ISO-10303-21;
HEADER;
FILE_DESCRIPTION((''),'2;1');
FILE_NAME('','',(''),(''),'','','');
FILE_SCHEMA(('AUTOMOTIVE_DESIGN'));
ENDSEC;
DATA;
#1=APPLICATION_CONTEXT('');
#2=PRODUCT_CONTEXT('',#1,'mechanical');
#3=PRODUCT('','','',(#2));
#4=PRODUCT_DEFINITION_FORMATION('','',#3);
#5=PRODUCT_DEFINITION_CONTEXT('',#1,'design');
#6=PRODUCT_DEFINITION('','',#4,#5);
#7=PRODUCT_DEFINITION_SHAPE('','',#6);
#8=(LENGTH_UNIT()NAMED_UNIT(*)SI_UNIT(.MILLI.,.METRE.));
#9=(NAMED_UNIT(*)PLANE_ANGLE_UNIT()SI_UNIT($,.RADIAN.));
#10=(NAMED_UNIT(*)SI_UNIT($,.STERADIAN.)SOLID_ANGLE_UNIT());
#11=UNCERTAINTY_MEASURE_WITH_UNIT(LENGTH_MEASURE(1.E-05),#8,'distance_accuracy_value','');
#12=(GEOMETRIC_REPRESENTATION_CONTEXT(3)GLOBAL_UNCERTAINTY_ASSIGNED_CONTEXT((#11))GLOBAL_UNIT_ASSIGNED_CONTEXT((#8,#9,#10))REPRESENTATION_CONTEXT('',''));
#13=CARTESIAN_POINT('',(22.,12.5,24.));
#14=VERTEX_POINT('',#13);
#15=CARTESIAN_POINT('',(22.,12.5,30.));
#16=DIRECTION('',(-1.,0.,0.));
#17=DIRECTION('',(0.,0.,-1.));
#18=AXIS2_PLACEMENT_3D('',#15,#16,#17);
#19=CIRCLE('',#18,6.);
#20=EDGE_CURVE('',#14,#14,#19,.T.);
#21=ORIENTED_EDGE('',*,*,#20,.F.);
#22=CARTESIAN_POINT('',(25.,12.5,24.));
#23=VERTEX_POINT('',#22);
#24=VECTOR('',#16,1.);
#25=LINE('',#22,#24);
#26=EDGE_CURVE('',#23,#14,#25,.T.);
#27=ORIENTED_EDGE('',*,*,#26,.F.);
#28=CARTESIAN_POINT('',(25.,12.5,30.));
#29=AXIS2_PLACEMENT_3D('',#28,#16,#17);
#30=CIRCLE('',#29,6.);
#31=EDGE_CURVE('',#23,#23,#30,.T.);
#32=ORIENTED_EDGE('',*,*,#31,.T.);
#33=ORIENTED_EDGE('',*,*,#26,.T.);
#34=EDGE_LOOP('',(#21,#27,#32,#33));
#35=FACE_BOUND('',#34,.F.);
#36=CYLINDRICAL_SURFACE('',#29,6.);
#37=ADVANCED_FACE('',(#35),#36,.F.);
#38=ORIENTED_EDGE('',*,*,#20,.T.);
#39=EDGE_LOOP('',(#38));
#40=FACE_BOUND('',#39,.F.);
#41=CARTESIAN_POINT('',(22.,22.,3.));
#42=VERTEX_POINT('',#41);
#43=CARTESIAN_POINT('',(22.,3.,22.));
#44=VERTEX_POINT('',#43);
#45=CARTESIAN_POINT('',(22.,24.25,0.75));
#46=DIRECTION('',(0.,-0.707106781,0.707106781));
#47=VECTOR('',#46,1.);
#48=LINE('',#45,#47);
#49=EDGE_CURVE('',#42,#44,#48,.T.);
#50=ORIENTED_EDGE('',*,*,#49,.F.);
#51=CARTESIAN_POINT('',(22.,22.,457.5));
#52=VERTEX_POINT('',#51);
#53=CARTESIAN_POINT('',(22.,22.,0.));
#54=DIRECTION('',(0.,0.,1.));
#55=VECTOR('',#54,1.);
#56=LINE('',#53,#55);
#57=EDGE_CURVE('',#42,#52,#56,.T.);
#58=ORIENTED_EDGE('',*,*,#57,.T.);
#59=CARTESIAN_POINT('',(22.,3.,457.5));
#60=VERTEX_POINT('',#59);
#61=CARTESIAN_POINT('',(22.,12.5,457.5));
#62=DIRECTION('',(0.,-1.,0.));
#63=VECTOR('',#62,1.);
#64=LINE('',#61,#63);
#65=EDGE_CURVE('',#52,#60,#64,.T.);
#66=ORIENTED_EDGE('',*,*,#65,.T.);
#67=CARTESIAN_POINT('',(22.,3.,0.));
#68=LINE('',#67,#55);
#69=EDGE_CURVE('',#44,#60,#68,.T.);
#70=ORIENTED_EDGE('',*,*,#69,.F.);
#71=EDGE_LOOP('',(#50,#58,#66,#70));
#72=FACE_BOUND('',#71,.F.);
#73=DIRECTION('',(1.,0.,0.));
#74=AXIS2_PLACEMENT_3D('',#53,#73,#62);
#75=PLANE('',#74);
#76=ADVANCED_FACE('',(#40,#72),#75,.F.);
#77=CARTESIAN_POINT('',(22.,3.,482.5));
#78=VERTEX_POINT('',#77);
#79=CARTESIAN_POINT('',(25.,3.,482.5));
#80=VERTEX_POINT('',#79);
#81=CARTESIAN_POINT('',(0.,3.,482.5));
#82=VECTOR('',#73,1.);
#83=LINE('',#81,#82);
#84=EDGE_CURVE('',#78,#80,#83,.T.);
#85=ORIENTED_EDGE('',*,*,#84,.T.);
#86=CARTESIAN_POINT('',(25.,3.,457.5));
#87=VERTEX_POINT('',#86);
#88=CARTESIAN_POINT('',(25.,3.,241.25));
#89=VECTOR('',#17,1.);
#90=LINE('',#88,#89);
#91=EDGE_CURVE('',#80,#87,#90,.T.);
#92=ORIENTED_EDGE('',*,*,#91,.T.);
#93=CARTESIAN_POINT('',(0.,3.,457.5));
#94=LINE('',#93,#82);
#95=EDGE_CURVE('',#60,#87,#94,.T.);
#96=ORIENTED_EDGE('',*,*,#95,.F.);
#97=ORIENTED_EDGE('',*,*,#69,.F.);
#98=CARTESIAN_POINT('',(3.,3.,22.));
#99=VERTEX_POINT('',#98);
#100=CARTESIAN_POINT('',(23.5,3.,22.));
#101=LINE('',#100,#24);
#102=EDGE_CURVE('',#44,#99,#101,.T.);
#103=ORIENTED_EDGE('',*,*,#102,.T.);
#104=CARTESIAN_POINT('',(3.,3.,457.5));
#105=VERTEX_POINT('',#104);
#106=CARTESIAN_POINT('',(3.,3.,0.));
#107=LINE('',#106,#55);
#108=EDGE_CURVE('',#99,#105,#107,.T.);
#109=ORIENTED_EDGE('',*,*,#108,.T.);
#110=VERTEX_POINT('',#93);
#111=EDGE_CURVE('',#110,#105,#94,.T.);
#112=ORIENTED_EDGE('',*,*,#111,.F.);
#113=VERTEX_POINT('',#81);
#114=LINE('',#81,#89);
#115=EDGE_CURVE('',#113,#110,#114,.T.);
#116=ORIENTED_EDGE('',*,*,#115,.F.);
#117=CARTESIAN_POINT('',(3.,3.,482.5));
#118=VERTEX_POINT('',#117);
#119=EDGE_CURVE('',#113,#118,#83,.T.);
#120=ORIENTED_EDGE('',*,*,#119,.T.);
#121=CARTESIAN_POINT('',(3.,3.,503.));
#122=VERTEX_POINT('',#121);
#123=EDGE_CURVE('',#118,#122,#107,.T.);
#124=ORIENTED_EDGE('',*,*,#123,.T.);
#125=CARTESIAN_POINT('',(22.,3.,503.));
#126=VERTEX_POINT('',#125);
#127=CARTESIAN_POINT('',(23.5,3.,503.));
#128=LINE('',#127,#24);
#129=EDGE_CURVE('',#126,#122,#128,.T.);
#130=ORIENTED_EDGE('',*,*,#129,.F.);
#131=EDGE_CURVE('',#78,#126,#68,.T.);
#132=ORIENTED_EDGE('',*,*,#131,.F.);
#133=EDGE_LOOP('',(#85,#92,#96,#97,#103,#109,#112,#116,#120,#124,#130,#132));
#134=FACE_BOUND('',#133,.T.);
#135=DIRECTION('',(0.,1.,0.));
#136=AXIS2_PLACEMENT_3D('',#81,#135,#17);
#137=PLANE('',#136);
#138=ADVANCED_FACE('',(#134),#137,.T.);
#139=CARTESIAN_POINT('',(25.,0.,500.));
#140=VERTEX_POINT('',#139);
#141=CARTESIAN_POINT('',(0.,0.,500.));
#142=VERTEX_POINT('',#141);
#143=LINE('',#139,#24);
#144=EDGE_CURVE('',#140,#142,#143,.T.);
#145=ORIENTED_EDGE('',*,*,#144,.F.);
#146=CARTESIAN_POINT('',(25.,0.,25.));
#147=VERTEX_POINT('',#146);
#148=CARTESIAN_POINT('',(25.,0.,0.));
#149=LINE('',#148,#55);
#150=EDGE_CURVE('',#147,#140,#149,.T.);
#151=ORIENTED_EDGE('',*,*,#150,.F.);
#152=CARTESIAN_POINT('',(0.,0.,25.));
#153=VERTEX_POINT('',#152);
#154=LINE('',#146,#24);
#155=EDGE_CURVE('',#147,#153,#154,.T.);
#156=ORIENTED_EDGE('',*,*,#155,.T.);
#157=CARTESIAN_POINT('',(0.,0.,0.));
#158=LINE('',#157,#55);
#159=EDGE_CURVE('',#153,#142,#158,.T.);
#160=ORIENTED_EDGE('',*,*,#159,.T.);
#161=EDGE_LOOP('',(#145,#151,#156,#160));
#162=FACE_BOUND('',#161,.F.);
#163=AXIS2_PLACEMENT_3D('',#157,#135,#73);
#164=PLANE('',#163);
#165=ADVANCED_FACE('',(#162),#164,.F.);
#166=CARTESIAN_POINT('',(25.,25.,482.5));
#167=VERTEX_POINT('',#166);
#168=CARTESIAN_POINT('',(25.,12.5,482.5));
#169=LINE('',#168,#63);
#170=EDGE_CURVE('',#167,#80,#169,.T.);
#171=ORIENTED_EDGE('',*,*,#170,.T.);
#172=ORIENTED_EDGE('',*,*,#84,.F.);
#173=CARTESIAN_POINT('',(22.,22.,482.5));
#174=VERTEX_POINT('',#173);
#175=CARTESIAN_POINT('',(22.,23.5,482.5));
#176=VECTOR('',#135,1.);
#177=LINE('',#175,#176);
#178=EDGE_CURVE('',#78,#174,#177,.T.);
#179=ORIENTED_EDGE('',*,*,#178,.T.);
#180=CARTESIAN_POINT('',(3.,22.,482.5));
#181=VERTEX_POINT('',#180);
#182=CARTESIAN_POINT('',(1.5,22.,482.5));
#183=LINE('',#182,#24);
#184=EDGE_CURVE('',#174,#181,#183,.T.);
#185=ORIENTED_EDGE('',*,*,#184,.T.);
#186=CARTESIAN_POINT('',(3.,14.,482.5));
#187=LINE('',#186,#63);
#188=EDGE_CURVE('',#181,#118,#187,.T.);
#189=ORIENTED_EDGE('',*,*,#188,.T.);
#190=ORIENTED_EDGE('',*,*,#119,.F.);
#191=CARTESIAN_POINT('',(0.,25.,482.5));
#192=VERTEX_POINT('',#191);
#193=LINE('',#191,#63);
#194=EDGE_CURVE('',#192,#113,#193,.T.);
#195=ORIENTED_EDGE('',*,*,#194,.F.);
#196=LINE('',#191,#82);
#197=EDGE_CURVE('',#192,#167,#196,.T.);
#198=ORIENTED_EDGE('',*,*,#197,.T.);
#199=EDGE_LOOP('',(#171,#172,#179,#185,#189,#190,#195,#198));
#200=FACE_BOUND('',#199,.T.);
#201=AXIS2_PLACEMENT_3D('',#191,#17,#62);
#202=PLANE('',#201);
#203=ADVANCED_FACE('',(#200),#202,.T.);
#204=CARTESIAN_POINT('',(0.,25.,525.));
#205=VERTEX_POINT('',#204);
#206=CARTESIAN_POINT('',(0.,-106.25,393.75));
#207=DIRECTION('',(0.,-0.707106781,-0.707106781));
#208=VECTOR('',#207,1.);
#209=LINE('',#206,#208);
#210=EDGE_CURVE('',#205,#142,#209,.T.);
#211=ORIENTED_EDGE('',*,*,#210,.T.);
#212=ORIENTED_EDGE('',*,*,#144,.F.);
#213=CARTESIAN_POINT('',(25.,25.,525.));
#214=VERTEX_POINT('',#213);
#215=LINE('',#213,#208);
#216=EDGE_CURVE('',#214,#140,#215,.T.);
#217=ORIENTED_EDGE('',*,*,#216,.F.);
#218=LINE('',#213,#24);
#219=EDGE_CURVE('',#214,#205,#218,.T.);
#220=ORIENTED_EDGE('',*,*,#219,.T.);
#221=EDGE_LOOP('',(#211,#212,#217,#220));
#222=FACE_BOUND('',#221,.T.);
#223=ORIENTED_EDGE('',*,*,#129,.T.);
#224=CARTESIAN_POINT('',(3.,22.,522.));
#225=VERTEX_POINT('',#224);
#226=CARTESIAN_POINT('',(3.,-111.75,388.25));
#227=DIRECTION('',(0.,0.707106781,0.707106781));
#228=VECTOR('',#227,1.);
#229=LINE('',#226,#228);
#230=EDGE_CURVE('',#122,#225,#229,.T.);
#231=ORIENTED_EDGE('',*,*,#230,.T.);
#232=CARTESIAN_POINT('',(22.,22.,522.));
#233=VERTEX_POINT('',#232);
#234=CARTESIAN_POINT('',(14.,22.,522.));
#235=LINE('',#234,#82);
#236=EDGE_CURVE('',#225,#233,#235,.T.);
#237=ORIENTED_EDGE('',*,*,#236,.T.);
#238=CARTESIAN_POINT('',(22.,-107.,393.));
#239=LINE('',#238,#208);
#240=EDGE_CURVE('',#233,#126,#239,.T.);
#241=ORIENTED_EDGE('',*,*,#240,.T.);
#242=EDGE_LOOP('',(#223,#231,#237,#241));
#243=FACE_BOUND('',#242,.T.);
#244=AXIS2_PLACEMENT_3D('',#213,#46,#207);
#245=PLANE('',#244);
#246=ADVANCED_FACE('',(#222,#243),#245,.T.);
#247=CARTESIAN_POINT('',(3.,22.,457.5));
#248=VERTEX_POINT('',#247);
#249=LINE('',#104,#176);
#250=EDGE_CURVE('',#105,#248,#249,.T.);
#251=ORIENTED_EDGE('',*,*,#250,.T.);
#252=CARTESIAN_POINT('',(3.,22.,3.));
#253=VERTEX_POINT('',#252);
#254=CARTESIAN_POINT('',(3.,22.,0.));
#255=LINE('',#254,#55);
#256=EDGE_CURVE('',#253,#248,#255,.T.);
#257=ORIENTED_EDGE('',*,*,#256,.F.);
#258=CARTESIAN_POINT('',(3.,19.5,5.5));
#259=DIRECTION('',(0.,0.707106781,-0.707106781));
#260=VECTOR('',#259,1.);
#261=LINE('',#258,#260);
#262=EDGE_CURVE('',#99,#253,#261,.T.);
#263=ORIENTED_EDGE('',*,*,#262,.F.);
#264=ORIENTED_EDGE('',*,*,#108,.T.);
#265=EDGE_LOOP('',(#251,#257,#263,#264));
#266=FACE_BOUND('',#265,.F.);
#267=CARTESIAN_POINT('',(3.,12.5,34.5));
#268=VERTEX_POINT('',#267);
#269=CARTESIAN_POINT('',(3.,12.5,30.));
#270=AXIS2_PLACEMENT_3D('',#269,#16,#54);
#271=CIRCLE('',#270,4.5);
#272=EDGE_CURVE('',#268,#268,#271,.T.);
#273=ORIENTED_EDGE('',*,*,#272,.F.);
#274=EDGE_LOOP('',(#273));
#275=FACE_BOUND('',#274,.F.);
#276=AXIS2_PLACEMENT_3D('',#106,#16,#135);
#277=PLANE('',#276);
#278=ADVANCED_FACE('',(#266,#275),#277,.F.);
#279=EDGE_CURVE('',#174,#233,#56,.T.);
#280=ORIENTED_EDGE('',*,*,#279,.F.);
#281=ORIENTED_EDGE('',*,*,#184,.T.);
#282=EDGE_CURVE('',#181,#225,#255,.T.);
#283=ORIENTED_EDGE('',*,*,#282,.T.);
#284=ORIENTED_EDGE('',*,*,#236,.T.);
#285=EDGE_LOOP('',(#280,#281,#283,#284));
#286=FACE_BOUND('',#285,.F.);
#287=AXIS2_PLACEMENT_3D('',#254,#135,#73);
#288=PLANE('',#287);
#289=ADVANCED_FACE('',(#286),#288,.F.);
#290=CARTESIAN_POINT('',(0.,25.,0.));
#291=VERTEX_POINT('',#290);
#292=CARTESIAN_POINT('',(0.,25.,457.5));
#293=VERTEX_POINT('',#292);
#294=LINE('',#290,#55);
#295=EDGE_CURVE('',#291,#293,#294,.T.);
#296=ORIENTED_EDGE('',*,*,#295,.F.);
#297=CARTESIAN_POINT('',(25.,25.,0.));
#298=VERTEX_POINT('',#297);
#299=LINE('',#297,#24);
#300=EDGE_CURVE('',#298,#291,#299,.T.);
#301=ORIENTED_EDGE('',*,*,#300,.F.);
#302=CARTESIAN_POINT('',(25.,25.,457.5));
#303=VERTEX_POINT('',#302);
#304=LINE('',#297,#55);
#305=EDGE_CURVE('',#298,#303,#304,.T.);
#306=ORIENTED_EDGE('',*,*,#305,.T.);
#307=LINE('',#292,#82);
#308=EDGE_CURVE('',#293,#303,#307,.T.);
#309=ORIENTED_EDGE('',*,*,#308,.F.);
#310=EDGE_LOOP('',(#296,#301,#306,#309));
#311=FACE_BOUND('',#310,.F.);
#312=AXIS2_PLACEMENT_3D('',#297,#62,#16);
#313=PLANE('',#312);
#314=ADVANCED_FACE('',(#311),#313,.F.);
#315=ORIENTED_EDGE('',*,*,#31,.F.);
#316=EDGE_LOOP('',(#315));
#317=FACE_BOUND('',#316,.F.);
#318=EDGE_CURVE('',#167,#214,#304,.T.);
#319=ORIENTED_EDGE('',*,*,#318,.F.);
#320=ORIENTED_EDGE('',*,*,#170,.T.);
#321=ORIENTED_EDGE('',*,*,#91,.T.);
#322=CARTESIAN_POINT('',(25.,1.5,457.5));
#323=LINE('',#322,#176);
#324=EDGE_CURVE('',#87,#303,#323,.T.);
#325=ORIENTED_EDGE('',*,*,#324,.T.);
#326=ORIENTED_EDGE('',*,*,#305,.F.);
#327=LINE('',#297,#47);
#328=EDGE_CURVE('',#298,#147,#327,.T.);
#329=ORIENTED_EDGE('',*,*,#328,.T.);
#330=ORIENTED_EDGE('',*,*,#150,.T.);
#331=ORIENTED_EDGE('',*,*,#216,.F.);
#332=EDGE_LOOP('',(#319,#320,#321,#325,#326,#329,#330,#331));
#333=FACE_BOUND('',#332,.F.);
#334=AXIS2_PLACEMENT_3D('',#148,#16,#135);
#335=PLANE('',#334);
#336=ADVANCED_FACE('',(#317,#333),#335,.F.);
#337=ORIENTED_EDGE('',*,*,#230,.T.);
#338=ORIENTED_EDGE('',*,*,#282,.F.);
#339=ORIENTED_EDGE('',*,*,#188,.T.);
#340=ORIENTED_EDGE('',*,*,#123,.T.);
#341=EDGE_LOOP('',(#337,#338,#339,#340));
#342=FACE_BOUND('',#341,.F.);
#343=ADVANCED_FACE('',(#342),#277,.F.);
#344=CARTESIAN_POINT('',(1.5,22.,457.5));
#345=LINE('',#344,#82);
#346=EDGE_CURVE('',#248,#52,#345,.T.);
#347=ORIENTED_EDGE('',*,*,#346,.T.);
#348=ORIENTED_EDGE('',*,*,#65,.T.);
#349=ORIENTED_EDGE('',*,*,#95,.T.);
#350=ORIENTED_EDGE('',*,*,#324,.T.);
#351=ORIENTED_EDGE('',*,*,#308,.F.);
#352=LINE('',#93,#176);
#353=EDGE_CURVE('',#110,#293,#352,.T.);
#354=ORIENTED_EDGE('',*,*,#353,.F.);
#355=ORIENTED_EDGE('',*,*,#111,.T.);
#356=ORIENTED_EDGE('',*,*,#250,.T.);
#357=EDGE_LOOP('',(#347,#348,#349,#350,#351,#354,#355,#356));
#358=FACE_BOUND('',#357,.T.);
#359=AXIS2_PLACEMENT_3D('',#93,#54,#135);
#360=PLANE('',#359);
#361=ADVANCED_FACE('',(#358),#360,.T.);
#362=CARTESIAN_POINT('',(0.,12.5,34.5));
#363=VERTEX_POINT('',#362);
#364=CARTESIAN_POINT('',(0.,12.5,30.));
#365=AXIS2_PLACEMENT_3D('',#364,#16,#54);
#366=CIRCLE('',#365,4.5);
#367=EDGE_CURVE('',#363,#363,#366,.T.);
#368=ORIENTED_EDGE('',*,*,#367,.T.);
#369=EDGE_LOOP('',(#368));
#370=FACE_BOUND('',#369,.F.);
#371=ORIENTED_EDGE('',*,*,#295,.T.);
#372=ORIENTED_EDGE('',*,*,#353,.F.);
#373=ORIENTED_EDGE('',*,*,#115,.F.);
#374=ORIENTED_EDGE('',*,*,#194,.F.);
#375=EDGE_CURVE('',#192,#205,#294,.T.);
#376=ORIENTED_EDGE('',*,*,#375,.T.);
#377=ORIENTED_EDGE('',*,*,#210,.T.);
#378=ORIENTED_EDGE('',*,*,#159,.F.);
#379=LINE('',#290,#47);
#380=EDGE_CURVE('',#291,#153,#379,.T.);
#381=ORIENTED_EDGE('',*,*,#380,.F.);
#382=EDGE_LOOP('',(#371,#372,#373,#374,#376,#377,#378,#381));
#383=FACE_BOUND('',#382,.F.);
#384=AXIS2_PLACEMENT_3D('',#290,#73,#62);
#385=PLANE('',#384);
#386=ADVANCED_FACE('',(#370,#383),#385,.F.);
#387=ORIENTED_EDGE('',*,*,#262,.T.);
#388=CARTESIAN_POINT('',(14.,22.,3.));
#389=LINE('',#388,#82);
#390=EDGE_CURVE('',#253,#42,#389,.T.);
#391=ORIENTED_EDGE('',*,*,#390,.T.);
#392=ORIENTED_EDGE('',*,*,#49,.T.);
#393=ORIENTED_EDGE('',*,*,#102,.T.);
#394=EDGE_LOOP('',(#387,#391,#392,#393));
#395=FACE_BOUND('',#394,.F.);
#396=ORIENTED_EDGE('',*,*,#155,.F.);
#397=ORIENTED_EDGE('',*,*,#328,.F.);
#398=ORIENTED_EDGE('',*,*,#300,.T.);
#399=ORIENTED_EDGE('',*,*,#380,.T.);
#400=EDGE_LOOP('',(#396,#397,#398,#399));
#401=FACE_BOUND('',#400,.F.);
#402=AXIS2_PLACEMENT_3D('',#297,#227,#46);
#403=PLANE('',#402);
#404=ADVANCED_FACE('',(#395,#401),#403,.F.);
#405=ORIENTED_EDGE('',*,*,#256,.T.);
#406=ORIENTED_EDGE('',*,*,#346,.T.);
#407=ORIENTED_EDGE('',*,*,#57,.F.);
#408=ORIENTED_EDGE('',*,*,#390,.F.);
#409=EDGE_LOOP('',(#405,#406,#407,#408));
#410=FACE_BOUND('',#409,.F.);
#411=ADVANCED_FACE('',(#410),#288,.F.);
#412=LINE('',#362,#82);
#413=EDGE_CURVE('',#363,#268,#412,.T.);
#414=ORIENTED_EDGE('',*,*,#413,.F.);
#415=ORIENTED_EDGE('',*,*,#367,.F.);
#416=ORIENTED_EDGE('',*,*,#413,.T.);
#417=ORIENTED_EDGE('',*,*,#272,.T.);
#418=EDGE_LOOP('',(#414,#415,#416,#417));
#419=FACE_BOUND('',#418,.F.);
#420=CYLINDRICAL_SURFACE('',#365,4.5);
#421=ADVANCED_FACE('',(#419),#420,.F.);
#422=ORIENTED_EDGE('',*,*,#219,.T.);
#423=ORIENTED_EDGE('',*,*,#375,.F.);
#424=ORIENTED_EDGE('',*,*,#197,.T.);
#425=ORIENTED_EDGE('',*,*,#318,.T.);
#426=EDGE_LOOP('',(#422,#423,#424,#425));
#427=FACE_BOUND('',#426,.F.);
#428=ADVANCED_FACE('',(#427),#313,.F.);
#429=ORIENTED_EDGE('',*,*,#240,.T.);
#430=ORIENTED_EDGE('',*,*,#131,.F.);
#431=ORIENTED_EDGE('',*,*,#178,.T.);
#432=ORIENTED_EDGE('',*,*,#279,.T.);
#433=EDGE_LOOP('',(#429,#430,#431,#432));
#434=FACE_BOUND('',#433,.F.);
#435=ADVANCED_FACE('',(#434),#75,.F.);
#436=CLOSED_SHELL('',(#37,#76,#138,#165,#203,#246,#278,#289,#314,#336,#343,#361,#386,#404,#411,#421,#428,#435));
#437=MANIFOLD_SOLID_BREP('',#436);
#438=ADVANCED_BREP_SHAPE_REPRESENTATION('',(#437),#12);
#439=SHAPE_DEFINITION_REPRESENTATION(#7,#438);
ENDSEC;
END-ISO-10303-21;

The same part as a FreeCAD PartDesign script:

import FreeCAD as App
import Part
import Sketcher
from FreeCAD import Vector


def add_polygon(sketch, points):
    """Adds a closed chain of lines whose ends are joined by coincident constraints."""
    first, n = sketch.GeometryCount, len(points)
    for a, b in zip(points, points[1:] + points[:1]):
        sketch.addGeometry(Part.LineSegment(App.Vector(*a, 0), App.Vector(*b, 0)), False)
    for i in range(n):
        sketch.addConstraint(Sketcher.Constraint("Coincident", first + i, 2, first + (i + 1) % n, 1))

doc = App.newDocument("Part")
params = doc.addObject("Spreadsheet::Sheet", "Params")
for row, (alias, value) in enumerate([
    ("sketch1_width", "25 mm"),
    ("pad1_length", "525 mm"),
    ("sketch2_width", "25 mm"),
    ("pocket1_length", "500 mm"),
    ("sketch3_diameter", "12 mm"),
    ("hole_diameter", "12 mm"),
    ("hole_depth", "8 mm"),
    ("sketch4_diameter", "9 mm"),
    ("sketch4_width", "22 mm"),
    ("sketch4_height", "25 mm"),
], start=1):
    params.set(f"A{row}", alias)
    params.set(f"B{row}", "=" + value)
    params.setAlias(f"B{row}", alias)

body = doc.addObject("PartDesign::Body", "Body")

# Sketch on XY plane
sketch1 = doc.addObject("Sketcher::SketchObject", "Sketch")
body.addObject(sketch1)
sketch1.AttachmentSupport = (doc.XY_Plane, [""])
sketch1.MapMode = "FlatFace"
add_polygon(sketch1, [(0, 25), (0, 0), (25, 0), (25, 25)])  # lines 0-3
add_polygon(sketch1, [(3, 3), (3, 22), (22, 22), (22, 3)])  # lines 4-7
sketch1.addConstraint([
    Sketcher.Constraint("Vertical", 0),
    Sketcher.Constraint("Horizontal", 1),
    Sketcher.Constraint("Vertical", 2),
    Sketcher.Constraint("Horizontal", 3),
    Sketcher.Constraint("Vertical", 4),
    Sketcher.Constraint("Horizontal", 5),
    Sketcher.Constraint("Vertical", 6),
    Sketcher.Constraint("Horizontal", 7),
    Sketcher.Constraint("Coincident", 0, 2, -1, 1),
    Sketcher.Constraint("Equal", 3, 0),
    Sketcher.Constraint("Equal", 7, 4),
    Sketcher.Constraint("DistanceX", 1, 1, 1, 2, 25.0),
    Sketcher.Constraint("DistanceX", -1, 1, 4, 2, 3.0),
    Sketcher.Constraint("DistanceY", -1, 1, 6, 2, 3.0),
    Sketcher.Constraint("DistanceY", 4, 2, 3, 2, 3.0),
])
sketch1.setExpression("Constraints[19]", "Params.sketch1_width")
pad1 = doc.addObject("PartDesign::Pad", "Pad")
body.addObject(pad1)
pad1.Profile = sketch1
pad1.setExpression("Length", "Params.pad1_length")

# Sketch on YZ plane
sketch2 = doc.addObject("Sketcher::SketchObject", "Sketch001")
body.addObject(sketch2)
sketch2.AttachmentSupport = (doc.YZ_Plane, [""])
sketch2.MapMode = "FlatFace"
sketch2.AttachmentOffset = App.Placement(Vector(0, 0, 25), App.Rotation())
add_polygon(sketch2, [(0, 25), (0, 0), (25, 0)])  # lines 0-2
add_polygon(sketch2, [(0, 500), (25, 525), (0, 525)])  # lines 3-5
sketch2.addConstraint([
    Sketcher.Constraint("Vertical", 0),
    Sketcher.Constraint("Horizontal", 1),
    Sketcher.Constraint("Horizontal", 4),
    Sketcher.Constraint("Vertical", 5),
    Sketcher.Constraint("Coincident", 0, 2, -1, 1),
    Sketcher.Constraint("PointOnObject", 4, 2, -2),
    Sketcher.Constraint("Perpendicular", 2, 3),
    Sketcher.Constraint("Vertical", 1, 2, 3, 2),
    Sketcher.Constraint("Equal", 4, 0),
    Sketcher.Constraint("DistanceX", 1, 1, 1, 2, 25.0),
    Sketcher.Constraint("DistanceY", -1, 1, 3, 2, 525.0),
])
sketch2.setExpression("Constraints[15]", "Params.sketch2_width")
pocket1 = doc.addObject("PartDesign::Pocket", "Pocket")
body.addObject(pocket1)
pocket1.Profile = sketch2
pocket1.setExpression("Length", "Params.pocket1_length")

# Sketch on YZ plane
sketch3 = doc.addObject("Sketcher::SketchObject", "Sketch002")
body.addObject(sketch3)
sketch3.AttachmentSupport = (doc.YZ_Plane, [""])
sketch3.MapMode = "FlatFace"
sketch3.AttachmentOffset = App.Placement(Vector(0, 0, 25), App.Rotation())
sketch3.addGeometry(Part.Circle(Vector(12.5, 30, 0), Vector(0, 0, 1), 6), False)
sketch3.addConstraint([
    Sketcher.Constraint("Diameter", 0, 12.0),
    Sketcher.Constraint("DistanceY", -1, 1, 0, 3, 30.0),
    Sketcher.Constraint("DistanceX", -1, 1, 0, 3, 12.5),
])
sketch3.setExpression("Constraints[0]", "Params.sketch3_diameter")
doc.recompute()
hole = doc.addObject("PartDesign::Hole", "Hole")
body.addObject(hole)
hole.Profile = sketch3
hole.ThreadType = "None"
hole.setExpression("Diameter", "Params.hole_diameter")
hole.DepthType = "Dimension"
hole.setExpression("Depth", "Params.hole_depth")
hole.DrillPoint = "Angled"
hole.DrillPointAngle = 118

# Sketch on YZ plane
sketch4 = doc.addObject("Sketcher::SketchObject", "Sketch003")
body.addObject(sketch4)
sketch4.AttachmentSupport = (doc.YZ_Plane, [""])
sketch4.MapMode = "FlatFace"
add_polygon(sketch4, [(25, 482.5), (25, 457.5), (3, 457.5), (3, 482.5)])  # lines 0-3
sketch4.addGeometry(Part.Circle(Vector(12.5, 30, 0), Vector(0, 0, 1), 4.5), False)  # 4
sketch4.addConstraint([
    Sketcher.Constraint("Vertical", 0),
    Sketcher.Constraint("Horizontal", 1),
    Sketcher.Constraint("Vertical", 2),
    Sketcher.Constraint("Horizontal", 3),
    Sketcher.Constraint("Diameter", 4, 9.0),
    Sketcher.Constraint("DistanceX", 1, 2, 1, 1, 22.0),
    Sketcher.Constraint("DistanceY", 0, 2, 0, 1, 25.0),
    Sketcher.Constraint("DistanceX", -1, 1, 0, 2, 25.0),
    Sketcher.Constraint("DistanceX", -1, 1, 4, 3, 12.5),
    Sketcher.Constraint("DistanceY", -1, 1, 4, 3, 30.0),
    Sketcher.Constraint("DistanceY", -1, 1, 0, 2, 457.5),
])
sketch4.setExpression("Constraints[8]", "Params.sketch4_diameter")
sketch4.setExpression("Constraints[9]", "Params.sketch4_width")
sketch4.setExpression("Constraints[10]", "Params.sketch4_height")
pocket2 = doc.addObject("PartDesign::Pocket", "Pocket001")
body.addObject(pocket2)
pocket2.Profile = sketch4
pocket2.Type = "ThroughAll"
pocket2.Reversed = True

doc.recompute()
